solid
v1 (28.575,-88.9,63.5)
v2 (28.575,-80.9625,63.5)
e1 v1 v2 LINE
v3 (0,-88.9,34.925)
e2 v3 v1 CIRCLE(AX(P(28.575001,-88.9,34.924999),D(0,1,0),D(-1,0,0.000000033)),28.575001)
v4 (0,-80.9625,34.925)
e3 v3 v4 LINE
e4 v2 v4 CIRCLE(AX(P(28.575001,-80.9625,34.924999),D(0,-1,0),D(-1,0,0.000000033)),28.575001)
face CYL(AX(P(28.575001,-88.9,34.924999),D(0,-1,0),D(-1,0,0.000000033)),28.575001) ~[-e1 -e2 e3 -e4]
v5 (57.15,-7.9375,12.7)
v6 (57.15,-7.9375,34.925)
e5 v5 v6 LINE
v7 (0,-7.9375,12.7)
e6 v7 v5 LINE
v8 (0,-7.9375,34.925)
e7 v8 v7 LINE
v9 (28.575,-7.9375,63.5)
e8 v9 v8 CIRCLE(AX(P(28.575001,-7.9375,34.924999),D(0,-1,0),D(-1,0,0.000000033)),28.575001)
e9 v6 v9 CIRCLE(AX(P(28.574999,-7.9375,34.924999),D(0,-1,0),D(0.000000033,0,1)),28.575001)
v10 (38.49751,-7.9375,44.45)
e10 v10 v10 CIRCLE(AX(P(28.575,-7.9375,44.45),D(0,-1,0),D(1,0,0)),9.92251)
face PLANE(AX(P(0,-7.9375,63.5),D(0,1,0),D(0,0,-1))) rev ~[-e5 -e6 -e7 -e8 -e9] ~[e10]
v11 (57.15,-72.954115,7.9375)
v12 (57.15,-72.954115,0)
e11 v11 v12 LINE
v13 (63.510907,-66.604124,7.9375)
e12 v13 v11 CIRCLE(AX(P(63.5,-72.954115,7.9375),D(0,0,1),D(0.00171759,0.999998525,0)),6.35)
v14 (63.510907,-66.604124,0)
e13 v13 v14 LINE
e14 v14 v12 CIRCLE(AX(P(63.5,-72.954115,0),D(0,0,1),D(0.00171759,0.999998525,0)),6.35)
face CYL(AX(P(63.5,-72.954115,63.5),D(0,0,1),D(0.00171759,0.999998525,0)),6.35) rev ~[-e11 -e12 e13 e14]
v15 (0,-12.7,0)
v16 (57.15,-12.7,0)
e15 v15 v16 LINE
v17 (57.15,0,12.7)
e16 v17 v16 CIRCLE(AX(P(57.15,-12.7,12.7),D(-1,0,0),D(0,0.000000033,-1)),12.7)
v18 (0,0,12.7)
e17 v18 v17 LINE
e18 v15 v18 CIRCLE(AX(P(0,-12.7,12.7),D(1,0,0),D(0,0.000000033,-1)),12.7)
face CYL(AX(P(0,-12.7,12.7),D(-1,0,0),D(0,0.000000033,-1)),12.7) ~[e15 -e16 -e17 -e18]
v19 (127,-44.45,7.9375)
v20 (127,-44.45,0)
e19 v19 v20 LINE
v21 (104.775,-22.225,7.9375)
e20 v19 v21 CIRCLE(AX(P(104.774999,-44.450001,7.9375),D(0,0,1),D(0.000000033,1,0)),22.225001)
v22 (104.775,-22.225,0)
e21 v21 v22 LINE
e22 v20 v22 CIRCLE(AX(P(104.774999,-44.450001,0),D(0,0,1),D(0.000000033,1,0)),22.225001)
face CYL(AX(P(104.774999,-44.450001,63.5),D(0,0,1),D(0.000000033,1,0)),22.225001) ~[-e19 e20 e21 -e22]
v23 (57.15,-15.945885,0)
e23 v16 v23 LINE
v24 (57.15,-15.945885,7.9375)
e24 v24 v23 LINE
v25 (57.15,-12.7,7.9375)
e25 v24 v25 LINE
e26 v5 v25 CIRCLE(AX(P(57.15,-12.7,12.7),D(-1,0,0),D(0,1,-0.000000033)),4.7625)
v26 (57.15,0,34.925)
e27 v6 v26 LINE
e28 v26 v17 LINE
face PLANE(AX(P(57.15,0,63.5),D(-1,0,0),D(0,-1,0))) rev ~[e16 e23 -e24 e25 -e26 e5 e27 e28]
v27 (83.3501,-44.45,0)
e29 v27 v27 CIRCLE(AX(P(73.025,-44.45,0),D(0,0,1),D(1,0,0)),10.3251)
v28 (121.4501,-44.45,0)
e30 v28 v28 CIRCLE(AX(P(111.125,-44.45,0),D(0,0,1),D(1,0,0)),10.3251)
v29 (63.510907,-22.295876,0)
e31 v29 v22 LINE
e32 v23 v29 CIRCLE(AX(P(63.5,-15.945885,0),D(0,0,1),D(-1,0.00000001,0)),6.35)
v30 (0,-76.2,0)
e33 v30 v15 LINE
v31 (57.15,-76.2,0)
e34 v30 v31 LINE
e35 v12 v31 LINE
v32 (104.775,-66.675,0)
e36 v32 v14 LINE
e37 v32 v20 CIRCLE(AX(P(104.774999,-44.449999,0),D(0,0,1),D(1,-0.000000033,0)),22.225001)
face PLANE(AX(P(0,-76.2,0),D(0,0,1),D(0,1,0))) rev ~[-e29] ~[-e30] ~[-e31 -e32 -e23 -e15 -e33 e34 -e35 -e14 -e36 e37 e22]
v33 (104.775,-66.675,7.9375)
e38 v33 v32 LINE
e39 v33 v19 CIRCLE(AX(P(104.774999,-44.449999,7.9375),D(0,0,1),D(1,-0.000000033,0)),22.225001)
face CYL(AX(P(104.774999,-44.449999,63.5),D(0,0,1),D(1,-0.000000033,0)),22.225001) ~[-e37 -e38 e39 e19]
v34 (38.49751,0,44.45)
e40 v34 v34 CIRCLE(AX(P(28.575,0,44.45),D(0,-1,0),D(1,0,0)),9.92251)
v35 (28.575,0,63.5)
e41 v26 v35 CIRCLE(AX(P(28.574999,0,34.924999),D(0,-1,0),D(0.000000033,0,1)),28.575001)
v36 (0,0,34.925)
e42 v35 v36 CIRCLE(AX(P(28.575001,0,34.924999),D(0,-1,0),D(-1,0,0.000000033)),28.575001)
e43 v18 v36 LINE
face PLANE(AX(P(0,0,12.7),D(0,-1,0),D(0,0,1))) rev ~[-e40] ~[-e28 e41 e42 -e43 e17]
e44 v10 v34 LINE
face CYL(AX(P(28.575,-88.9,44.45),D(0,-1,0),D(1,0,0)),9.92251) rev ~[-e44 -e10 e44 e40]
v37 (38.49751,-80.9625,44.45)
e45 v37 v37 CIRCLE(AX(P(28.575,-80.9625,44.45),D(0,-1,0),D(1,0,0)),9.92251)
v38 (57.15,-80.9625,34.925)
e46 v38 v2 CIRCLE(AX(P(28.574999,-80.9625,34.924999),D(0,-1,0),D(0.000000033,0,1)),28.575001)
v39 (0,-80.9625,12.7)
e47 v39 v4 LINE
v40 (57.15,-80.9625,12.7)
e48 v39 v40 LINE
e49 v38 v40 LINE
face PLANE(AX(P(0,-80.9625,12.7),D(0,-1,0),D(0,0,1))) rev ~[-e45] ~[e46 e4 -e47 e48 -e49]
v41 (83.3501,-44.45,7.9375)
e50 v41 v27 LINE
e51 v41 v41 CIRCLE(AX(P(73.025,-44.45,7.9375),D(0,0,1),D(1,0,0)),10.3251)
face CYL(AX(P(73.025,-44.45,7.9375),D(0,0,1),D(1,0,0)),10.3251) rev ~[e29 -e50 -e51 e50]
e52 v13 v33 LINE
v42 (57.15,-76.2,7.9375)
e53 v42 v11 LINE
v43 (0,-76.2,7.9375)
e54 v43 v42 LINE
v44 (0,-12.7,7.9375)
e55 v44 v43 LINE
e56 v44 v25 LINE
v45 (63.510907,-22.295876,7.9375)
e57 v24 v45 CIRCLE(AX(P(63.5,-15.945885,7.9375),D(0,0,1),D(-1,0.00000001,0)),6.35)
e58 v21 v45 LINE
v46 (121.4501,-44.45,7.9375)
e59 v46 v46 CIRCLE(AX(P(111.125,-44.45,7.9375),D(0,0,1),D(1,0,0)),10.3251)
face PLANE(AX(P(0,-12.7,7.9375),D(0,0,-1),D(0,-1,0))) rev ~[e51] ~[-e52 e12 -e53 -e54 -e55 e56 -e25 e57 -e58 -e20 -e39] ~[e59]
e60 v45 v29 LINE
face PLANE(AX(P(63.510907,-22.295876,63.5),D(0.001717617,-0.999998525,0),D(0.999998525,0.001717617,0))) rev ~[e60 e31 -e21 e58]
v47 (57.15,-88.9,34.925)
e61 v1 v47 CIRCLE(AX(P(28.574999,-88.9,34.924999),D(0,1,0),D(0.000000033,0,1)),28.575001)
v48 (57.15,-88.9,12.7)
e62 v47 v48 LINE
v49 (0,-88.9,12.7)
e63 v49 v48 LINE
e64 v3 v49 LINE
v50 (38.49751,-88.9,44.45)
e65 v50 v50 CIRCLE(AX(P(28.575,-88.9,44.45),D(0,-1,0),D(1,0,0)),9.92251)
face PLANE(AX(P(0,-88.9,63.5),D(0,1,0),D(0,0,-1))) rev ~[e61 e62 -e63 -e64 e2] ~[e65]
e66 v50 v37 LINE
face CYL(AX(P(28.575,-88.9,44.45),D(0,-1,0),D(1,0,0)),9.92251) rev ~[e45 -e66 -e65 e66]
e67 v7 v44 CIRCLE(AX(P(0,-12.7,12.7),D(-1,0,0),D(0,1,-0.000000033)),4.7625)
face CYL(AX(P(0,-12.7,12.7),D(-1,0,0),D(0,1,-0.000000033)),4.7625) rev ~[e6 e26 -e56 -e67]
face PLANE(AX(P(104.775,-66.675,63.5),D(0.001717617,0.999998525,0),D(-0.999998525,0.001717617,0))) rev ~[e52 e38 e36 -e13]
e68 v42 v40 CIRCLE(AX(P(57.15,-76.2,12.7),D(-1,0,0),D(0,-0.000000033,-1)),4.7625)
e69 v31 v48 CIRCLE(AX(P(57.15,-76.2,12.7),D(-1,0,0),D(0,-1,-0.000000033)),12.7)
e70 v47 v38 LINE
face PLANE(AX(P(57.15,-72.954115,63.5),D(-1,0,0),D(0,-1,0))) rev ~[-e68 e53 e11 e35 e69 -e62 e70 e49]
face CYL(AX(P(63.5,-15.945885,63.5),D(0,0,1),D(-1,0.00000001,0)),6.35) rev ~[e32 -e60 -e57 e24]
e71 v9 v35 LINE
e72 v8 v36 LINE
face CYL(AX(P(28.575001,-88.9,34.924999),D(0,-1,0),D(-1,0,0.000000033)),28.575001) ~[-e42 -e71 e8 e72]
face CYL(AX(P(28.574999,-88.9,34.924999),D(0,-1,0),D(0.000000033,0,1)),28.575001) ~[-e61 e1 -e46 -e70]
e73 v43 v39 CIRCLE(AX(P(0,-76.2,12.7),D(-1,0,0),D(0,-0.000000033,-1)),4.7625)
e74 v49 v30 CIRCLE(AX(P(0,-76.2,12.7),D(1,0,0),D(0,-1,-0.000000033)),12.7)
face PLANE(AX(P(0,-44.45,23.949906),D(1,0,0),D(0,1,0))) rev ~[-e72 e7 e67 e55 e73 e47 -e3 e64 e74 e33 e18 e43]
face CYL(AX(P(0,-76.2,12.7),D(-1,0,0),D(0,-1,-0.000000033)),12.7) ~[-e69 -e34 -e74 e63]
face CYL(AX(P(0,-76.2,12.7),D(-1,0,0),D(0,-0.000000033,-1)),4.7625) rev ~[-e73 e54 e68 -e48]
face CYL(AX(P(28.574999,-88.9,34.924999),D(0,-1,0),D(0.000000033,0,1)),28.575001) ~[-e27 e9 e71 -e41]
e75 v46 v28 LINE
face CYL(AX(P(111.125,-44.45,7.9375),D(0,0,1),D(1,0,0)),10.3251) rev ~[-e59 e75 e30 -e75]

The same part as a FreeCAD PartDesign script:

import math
import FreeCAD as App
import Part
import Sketcher
from FreeCAD import Vector
Q = App.Units.Quantity

doc = App.newDocument("Part")
body = doc.addObject("PartDesign::Body", "Body")

# Sketch on YZ plane
sketch1 = body.newObject("Sketcher::SketchObject", "Sketch")
sketch1.AttachmentSupport = (doc.getObject("YZ_Plane"), [""])
sketch1.MapMode = "FlatFace"
sketch1.addGeometry([
    Part.LineSegment(Vector(-76.2, 0, 0), Vector(-12.7, 0, 0)),  # 0
    Part.ArcOfCircle(Part.Circle(Vector(-12.7, 12.7, 0), Vector(0, 0, 1), 12.7), math.radians(-90), math.radians(0)),  # 1
    Part.LineSegment(Vector(0, 12.7, 0), Vector(0, 63.5, 0)),  # 2
    Part.LineSegment(Vector(0, 63.5, 0), Vector(-7.9, 63.5, 0)),  # 3
    Part.LineSegment(Vector(-7.9, 63.5, 0), Vector(-7.9, 12.7, 0)),  # 4
    Part.ArcOfCircle(Part.Circle(Vector(-12.7, 12.7, 0), Vector(0, 0, 1), 4.8), math.radians(-90), math.radians(0)),  # 5
    Part.LineSegment(Vector(-12.7, 7.9, 0), Vector(-76.2, 7.9, 0)),  # 6
    Part.ArcOfCircle(Part.Circle(Vector(-76.2, 12.7, 0), Vector(0, 0, 1), 4.8), math.radians(-180), math.radians(-90)),  # 7
    Part.LineSegment(Vector(-81, 12.7, 0), Vector(-81, 63.5, 0)),  # 8
    Part.LineSegment(Vector(-81, 63.5, 0), Vector(-88.9, 63.5, 0)),  # 9
    Part.LineSegment(Vector(-88.9, 63.5, 0), Vector(-88.9, 12.7, 0)),  # 10
    Part.ArcOfCircle(Part.Circle(Vector(-76.2, 12.7, 0), Vector(0, 0, 1), 12.7), math.radians(-180), math.radians(-90)),  # 11
], False)
sketch1.addConstraint([
    Sketcher.Constraint("Tangent", 0, 2, 1, 1),
    Sketcher.Constraint("Tangent", 1, 2, 2, 1),
    Sketcher.Constraint("Coincident", 2, 2, 3, 1),
    Sketcher.Constraint("Coincident", 3, 2, 4, 1),
    Sketcher.Constraint("Tangent", 4, 2, 5, 2),
    Sketcher.Constraint("Tangent", 5, 1, 6, 1),
    Sketcher.Constraint("Tangent", 6, 2, 7, 2),
    Sketcher.Constraint("Tangent", 7, 1, 8, 1),
    Sketcher.Constraint("Coincident", 8, 2, 9, 1),
    Sketcher.Constraint("Coincident", 9, 2, 10, 1),
    Sketcher.Constraint("Tangent", 10, 2, 11, 1),
    Sketcher.Constraint("Tangent", 11, 2, 0, 1),
    Sketcher.Constraint("Horizontal", 0),
    Sketcher.Constraint("Vertical", 2),
    Sketcher.Constraint("Horizontal", 3),
    Sketcher.Constraint("Vertical", 4),
    Sketcher.Constraint("Horizontal", 6),
    Sketcher.Constraint("Vertical", 8),
    Sketcher.Constraint("Horizontal", 9),
    Sketcher.Constraint("Vertical", 10),
    Sketcher.Constraint("Coincident", 5, 3, 1, 3),
    Sketcher.Constraint("Coincident", 11, 3, 7, 3),
    Sketcher.Constraint("Equal", 5, 7),
    Sketcher.Constraint("PointOnObject", 0, 2, -1),
    Sketcher.Constraint("PointOnObject", 1, 2, -2),
    Sketcher.Constraint("Horizontal", 3, 2, 8, 2),
    Sketcher.Constraint("Radius", 1, Q("0.5 in")),
    Sketcher.Constraint("DistanceY", 2, 1, 2, 2, Q("2 in")),
    Sketcher.Constraint("DistanceX", 0, 1, 0, 2, Q("2.5 in")),
    Sketcher.Constraint("Radius", 5, Q("0.1875 in")),
])
pad1 = body.newObject("PartDesign::Pad", "Pad")
pad1.Profile = sketch1
pad1.Length = Q("5 in")

# Sketch on XZ plane
sketch2 = body.newObject("Sketcher::SketchObject", "Sketch001")
sketch2.AttachmentSupport = (doc.getObject("XZ_Plane"), [""])
sketch2.MapMode = "FlatFace"
sketch2.AttachmentOffset = App.Placement(Vector(0, 0, 3.5 * 25.4), App.Rotation())
sketch2.addGeometry([
    Part.LineSegment(Vector(0, 64, 0), Vector(0, 35, 0)),  # 0
    Part.ArcOfCircle(Part.Circle(Vector(29, 35, 0), Vector(0, 0, 1), 29), math.radians(90), math.radians(180)),  # 1
    Part.LineSegment(Vector(29, 64, 0), Vector(0, 64, 0)),  # 2
    Part.ArcOfCircle(Part.Circle(Vector(29, 35, 0), Vector(0, 0, 1), 29), math.radians(0), math.radians(90)),  # 3
    Part.LineSegment(Vector(57, 35, 0), Vector(57, 64, 0)),  # 4
    Part.LineSegment(Vector(57, 64, 0), Vector(29, 64, 0)),  # 5
], False)
sketch2.addConstraint([
    Sketcher.Constraint("Tangent", 0, 2, 1, 2),
    Sketcher.Constraint("Tangent", 1, 1, 2, 1),
    Sketcher.Constraint("Coincident", 2, 2, 0, 1),
    Sketcher.Constraint("Tangent", 3, 1, 4, 1),
    Sketcher.Constraint("Coincident", 4, 2, 5, 1),
    Sketcher.Constraint("Tangent", 5, 2, 3, 2),
    Sketcher.Constraint("Vertical", 0),
    Sketcher.Constraint("Horizontal", 2),
    Sketcher.Constraint("Vertical", 4),
    Sketcher.Constraint("Horizontal", 5),
    Sketcher.Constraint("Coincident", 3, 3, 1, 3),
    Sketcher.Constraint("Equal", 1, 3),
    Sketcher.Constraint("PointOnObject", 0, 2, -2),
    Sketcher.Constraint("Radius", 1, Q("1.125 in")),
    Sketcher.Constraint("DistanceY", -1, 1, 1, 1, Q("2.5 in")),
])
pocket1 = body.newObject("PartDesign::Pocket", "Pocket")
pocket1.Profile = sketch2
pocket1.Type = "ThroughAll"

# Sketch on XY plane
sketch3 = body.newObject("Sketcher::SketchObject", "Sketch002")
sketch3.AttachmentSupport = (doc.getObject("XY_Plane"), [""])
sketch3.MapMode = "FlatFace"
sketch3.AttachmentOffset = App.Placement(Vector(0, 0, 2.5 * 25.4), App.Rotation())
sketch3.addGeometry([
    Part.LineSegment(Vector(127, 0, 0), Vector(57, 0, 0)),  # 0
    Part.LineSegment(Vector(57, 0, 0), Vector(57, -16, 0)),  # 1
    Part.ArcOfCircle(Part.Circle(Vector(64, -16, 0), Vector(0, 0, 1), 6), math.radians(180), math.radians(270)),  # 2
    Part.LineSegment(Vector(64, -22, 0), Vector(105, -22, 0)),  # 3
    Part.ArcOfCircle(Part.Circle(Vector(105, -44, 0), Vector(0, 0, 1), 22), math.radians(0), math.radians(90)),  # 4
    Part.LineSegment(Vector(127, -44, 0), Vector(127, 0, 0)),  # 5
    Part.LineSegment(Vector(127, -89, 0), Vector(127, -44, 0)),  # 6
    Part.ArcOfCircle(Part.Circle(Vector(105, -44, 0), Vector(0, 0, 1), 22), math.radians(-90), math.radians(0)),  # 7
    Part.LineSegment(Vector(105, -67, 0), Vector(64, -67, 0)),  # 8
    Part.ArcOfCircle(Part.Circle(Vector(64, -73, 0), Vector(0, 0, 1), 6), math.radians(90), math.radians(180)),  # 9
    Part.LineSegment(Vector(57, -73, 0), Vector(57, -89, 0)),  # 10
    Part.LineSegment(Vector(57, -89, 0), Vector(127, -89, 0)),  # 11
], False)
sketch3.addConstraint([
    Sketcher.Constraint("Coincident", 0, 2, 1, 1),
    Sketcher.Constraint("Tangent", 1, 2, 2, 1),
    Sketcher.Constraint("Tangent", 2, 2, 3, 1),
    Sketcher.Constraint("Coincident", 3, 2, 4, 2),
    Sketcher.Constraint("Tangent", 4, 1, 5, 1),
    Sketcher.Constraint("Coincident", 5, 2, 0, 1),
    Sketcher.Constraint("Tangent", 6, 2, 7, 2),
    Sketcher.Constraint("Coincident", 7, 1, 8, 1),
    Sketcher.Constraint("Tangent", 8, 2, 9, 1),
    Sketcher.Constraint("Tangent", 9, 2, 10, 1),
    Sketcher.Constraint("Coincident", 10, 2, 11, 1),
    Sketcher.Constraint("Coincident", 11, 2, 6, 1),
    Sketcher.Constraint("Horizontal", 0),
    Sketcher.Constraint("Vertical", 1),
    Sketcher.Constraint("Vertical", 5),
    Sketcher.Constraint("Vertical", 6),
    Sketcher.Constraint("Vertical", 10),
    Sketcher.Constraint("Horizontal", 11),
    Sketcher.Constraint("Coincident", 7, 3, 4, 3),
    Sketcher.Constraint("Equal", 4, 7),
    Sketcher.Constraint("Equal", 2, 9),
    Sketcher.Constraint("PointOnObject", 0, 2, -1),
    Sketcher.Constraint("Vertical", 2, 3, 9, 3),
    Sketcher.Constraint("Vertical", 7, 3, 3, 2),
    Sketcher.Constraint("Vertical", 3, 2, 7, 1),
    Sketcher.Constraint("Vertical", 2, 2, 8, 2),
    Sketcher.Constraint("Equal", 5, 6),
    Sketcher.Constraint("Radius", 2, Q("0.25 in")),
    Sketcher.Constraint("DistanceX", -1, 1, 4, 1, Q("5 in")),
    Sketcher.Constraint("Radius", 4, Q("0.875 in")),
    Sketcher.Constraint("DistanceX", 0, 2, 0, 1, Q("2.75 in")),
    Sketcher.Constraint("DistanceY", 5, 1, 5, 2, Q("1.75 in")),
    Sketcher.Constraint("DistanceY", 1, 2, 1, 1, Q("15.945885 mm")),
])
pocket2 = body.newObject("PartDesign::Pocket", "Pocket001")
pocket2.Profile = sketch3
pocket2.Type = "ThroughAll"

# Sketch on XZ plane
sketch4 = body.newObject("Sketcher::SketchObject", "Sketch003")
sketch4.AttachmentSupport = (doc.getObject("XZ_Plane"), [""])
sketch4.MapMode = "FlatFace"
sketch4.AttachmentOffset = App.Placement(Vector(0, 0, 3.5 * 25.4), App.Rotation())
sketch4.addGeometry(Part.Circle(Vector(29, 44, 0), Vector(0, 0, 1), 10), False)
sketch4.addConstraint([
    Sketcher.Constraint("Diameter", 0, Q("0.7813 in")),
    Sketcher.Constraint("DistanceY", -1, 1, 0, 3, Q("1.75 in")),
    Sketcher.Constraint("DistanceX", -1, 1, 0, 3, Q("1.125 in")),
])
pocket3 = body.newObject("PartDesign::Pocket", "Pocket002")
pocket3.Profile = sketch4
pocket3.Type = "ThroughAll"

# Sketch on XY plane
sketch5 = body.newObject("Sketcher::SketchObject", "Sketch004")
sketch5.AttachmentSupport = (doc.getObject("XY_Plane"), [""])
sketch5.MapMode = "FlatFace"
sketch5.AttachmentOffset = App.Placement(Vector(0, 0, 0.3125 * 25.4), App.Rotation())
sketch5.addGeometry([
    Part.Circle(Vector(73, -44, 0), Vector(0, 0, 1), 10),
    Part.Circle(Vector(111, -44, 0), Vector(0, 0, 1), 10),
], False)
sketch5.addConstraint([
    Sketcher.Constraint("Equal", 0, 1),
    Sketcher.Constraint("Horizontal", 0, 3, 1, 3),
    Sketcher.Constraint("Diameter", 0, Q("0.813 in")),
    Sketcher.Constraint("DistanceX", 0, 3, 1, 3, Q("1.5 in")),
    Sketcher.Constraint("DistanceY", 0, 3, -1, 1, Q("1.75 in")),
    Sketcher.Constraint("DistanceX", -1, 1, 0, 3, Q("2.875 in")),
])
pocket4 = body.newObject("PartDesign::Pocket", "Pocket003")
pocket4.Profile = sketch5
pocket4.Length = Q("1 in")

doc.recompute()
